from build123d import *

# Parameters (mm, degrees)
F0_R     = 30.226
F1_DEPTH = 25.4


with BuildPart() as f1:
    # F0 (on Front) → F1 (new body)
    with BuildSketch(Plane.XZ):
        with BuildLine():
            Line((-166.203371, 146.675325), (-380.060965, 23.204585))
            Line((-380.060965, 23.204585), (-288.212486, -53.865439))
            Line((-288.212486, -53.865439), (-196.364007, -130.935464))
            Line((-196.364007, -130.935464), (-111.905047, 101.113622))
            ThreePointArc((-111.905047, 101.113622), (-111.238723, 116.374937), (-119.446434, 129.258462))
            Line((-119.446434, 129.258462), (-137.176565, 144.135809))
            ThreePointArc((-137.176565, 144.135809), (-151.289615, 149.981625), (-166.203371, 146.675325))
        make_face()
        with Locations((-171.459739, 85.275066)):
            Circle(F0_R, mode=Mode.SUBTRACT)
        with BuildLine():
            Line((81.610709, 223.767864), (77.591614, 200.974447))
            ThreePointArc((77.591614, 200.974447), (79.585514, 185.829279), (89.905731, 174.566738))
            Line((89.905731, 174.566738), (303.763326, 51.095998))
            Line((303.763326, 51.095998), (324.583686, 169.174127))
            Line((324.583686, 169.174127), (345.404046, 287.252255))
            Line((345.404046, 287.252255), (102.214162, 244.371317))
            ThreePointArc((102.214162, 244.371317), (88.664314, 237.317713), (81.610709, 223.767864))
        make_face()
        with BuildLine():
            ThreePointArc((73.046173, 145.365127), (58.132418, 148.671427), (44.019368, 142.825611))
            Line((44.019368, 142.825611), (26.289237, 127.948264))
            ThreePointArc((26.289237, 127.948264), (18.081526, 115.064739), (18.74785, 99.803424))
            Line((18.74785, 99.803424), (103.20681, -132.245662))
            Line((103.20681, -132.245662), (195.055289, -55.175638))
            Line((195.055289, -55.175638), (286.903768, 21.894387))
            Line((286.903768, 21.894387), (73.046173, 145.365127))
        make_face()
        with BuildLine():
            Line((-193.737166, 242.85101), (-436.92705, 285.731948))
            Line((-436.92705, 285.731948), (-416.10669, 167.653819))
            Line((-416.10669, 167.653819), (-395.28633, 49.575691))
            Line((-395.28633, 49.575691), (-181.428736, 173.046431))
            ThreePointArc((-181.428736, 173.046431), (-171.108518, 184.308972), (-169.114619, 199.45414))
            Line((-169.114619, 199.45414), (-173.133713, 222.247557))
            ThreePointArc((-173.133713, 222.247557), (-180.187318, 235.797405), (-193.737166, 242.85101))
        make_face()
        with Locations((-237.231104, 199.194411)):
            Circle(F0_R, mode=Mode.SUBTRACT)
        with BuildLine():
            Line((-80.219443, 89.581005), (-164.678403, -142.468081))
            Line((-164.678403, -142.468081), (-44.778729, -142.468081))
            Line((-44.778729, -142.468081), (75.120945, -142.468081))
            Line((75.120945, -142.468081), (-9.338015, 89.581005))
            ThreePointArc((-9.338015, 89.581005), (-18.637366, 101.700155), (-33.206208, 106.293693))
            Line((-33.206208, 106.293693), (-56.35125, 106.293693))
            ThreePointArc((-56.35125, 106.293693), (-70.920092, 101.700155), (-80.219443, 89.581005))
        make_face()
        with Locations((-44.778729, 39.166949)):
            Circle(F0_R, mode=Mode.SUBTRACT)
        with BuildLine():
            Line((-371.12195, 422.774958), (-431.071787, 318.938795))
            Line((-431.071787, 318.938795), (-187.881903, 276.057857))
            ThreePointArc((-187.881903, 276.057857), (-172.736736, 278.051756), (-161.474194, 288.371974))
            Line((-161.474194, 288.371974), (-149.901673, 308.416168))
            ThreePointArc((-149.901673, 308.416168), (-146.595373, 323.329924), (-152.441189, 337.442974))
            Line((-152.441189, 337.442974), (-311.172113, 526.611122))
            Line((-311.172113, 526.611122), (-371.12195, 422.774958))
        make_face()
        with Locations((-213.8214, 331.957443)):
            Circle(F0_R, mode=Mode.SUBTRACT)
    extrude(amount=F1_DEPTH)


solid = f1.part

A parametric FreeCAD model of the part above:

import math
import FreeCAD as App
import Part
import Sketcher
from FreeCAD import Vector
Q = App.Units.Quantity

doc = App.newDocument("Part")
body = doc.addObject("PartDesign::Body", "Body")
body.AllowCompound = True

sketch1 = doc.addObject("Sketcher::SketchObject", "Sketch")
body.addObject(sketch1)
sketch1.AttachmentSupport = (doc.XZ_Plane, [""])
sketch1.MapMode = "FlatFace"
sketch1.addGeometry([
    Part.LineSegment(Vector(-166.203371, 146.675325, 0), Vector(-380.060965, 23.204585, 0)),
    Part.LineSegment(Vector(-380.060965, 23.204585, 0), Vector(-288.212486, -53.865439, 0)),
    Part.LineSegment(Vector(-288.212486, -53.865439, 0), Vector(-196.364007, -130.935464, 0)),
    Part.LineSegment(Vector(-196.364007, -130.935464, 0), Vector(-111.905047, 101.113622, 0)),
    Part.ArcOfCircle(Part.Circle(Vector(-135.773237, 109.800934, 0), Vector(0, 0, 1), 25.399997), math.radians(-20.000004), math.radians(50.000003)),
    Part.LineSegment(Vector(-119.446434, 129.258462, 0), Vector(-137.176565, 144.135809, 0)),
    Part.ArcOfCircle(Part.Circle(Vector(-153.503371, 124.678277, 0), Vector(0, 0, 1), 25.400002), math.radians(50.000004), math.radians(119.999998)),
    Part.Circle(Vector(-171.459739, 85.275066, 0), Vector(0, 0, 1), 30.226),
    Part.LineSegment(Vector(81.610709, 223.767864, 0), Vector(77.591614, 200.974447, 0)),
    Part.ArcOfCircle(Part.Circle(Vector(102.605734, 196.563785, 0), Vector(0, 0, 1), 25.400003), math.radians(170.000004), math.radians(239.999996)),
    Part.LineSegment(Vector(89.905731, 174.566738, 0), Vector(303.763326, 51.095998, 0)),
    Part.LineSegment(Vector(303.763326, 51.095998, 0), Vector(324.583686, 169.174127, 0)),
    Part.LineSegment(Vector(324.583686, 169.174127, 0), Vector(345.404046, 287.252255, 0)),
    Part.LineSegment(Vector(345.404046, 287.252255, 0), Vector(102.214162, 244.371317, 0)),
    Part.ArcOfCircle(Part.Circle(Vector(106.624825, 219.357201, 0), Vector(0, 0, 1), 25.399999), math.radians(99.999999), math.radians(170.000001)),
    Part.ArcOfCircle(Part.Circle(Vector(60.346173, 123.368081, 0), Vector(0, 0, 1), 25.400001), math.radians(60.000001), math.radians(129.999997)),
    Part.LineSegment(Vector(44.019368, 142.825611, 0), Vector(26.289237, 127.948264, 0)),
    Part.ArcOfCircle(Part.Circle(Vector(42.61604, 108.490736, 0), Vector(0, 0, 1), 25.399997), math.radians(129.999997), math.radians(200.000004)),
    Part.LineSegment(Vector(18.74785, 99.803424, 0), Vector(103.20681, -132.245662, 0)),
    Part.LineSegment(Vector(103.20681, -132.245662, 0), Vector(195.055289, -55.175638, 0)),
    Part.LineSegment(Vector(195.055289, -55.175638, 0), Vector(286.903768, 21.894387, 0)),
    Part.LineSegment(Vector(286.903768, 21.894387, 0), Vector(73.046173, 145.365127, 0)),
    Part.LineSegment(Vector(-193.737166, 242.85101, 0), Vector(-436.92705, 285.731948, 0)),
    Part.LineSegment(Vector(-436.92705, 285.731948, 0), Vector(-416.10669, 167.653819, 0)),
    Part.LineSegment(Vector(-416.10669, 167.653819, 0), Vector(-395.28633, 49.575691, 0)),
    Part.LineSegment(Vector(-395.28633, 49.575691, 0), Vector(-181.428736, 173.046431, 0)),
    Part.ArcOfCircle(Part.Circle(Vector(-194.128734, 195.043476, 0), Vector(0, 0, 1), 25.399999), math.radians(-60.000002), math.radians(10.000002)),
    Part.LineSegment(Vector(-169.114619, 199.45414, 0), Vector(-173.133713, 222.247557, 0)),
    Part.ArcOfCircle(Part.Circle(Vector(-198.147832, 217.836891, 0), Vector(0, 0, 1), 25.400002), math.radians(10.000004), math.radians(79.999996)),
    Part.Circle(Vector(-237.231104, 199.194411, 0), Vector(0, 0, 1), 30.226),
    Part.LineSegment(Vector(-80.219443, 89.581005, 0), Vector(-164.678403, -142.468081, 0)),
    Part.LineSegment(Vector(-164.678403, -142.468081, 0), Vector(75.120945, -142.468081, 0)),
    Part.LineSegment(Vector(75.120945, -142.468081, 0), Vector(-9.338015, 89.581005, 0)),
    Part.ArcOfCircle(Part.Circle(Vector(-33.206207, 80.893693, 0), Vector(0, 0, 1), 25.4), math.radians(20.000001), math.radians(90.000002)),
    Part.LineSegment(Vector(-33.206208, 106.293693, 0), Vector(-56.35125, 106.293693, 0)),
    Part.ArcOfCircle(Part.Circle(Vector(-56.351251, 80.893693, 0), Vector(0, 0, 1), 25.4), math.radians(89.999998), math.radians(159.999999)),
    Part.Circle(Vector(-44.778729, 39.166949, 0), Vector(0, 0, 1), 30.226),
    Part.LineSegment(Vector(-371.12195, 422.774958, 0), Vector(-431.071787, 318.938795, 0)),
    Part.LineSegment(Vector(-431.071787, 318.938795, 0), Vector(-187.881903, 276.057857, 0)),
    Part.ArcOfCircle(Part.Circle(Vector(-183.47124, 301.071974, 0), Vector(0, 0, 1), 25.4), math.radians(-99.999999), math.radians(-30.000001)),
    Part.LineSegment(Vector(-161.474194, 288.371974, 0), Vector(-149.901673, 308.416168, 0)),
    Part.ArcOfCircle(Part.Circle(Vector(-171.898721, 321.116168, 0), Vector(0, 0, 1), 25.400002), math.radians(-29.999998), math.radians(39.999996)),
    Part.LineSegment(Vector(-152.441189, 337.442974, 0), Vector(-311.172113, 526.611122, 0)),
    Part.LineSegment(Vector(-311.172113, 526.611122, 0), Vector(-371.12195, 422.774958, 0)),
    Part.Circle(Vector(-213.8214, 331.957443, 0), Vector(0, 0, 1), 30.226),
], False)
sketch1.addConstraint([
    Sketcher.Constraint("Coincident", 0, 2, 1, 1),
    Sketcher.Constraint("Coincident", 1, 2, 2, 1),
    Sketcher.Constraint("Coincident", 2, 2, 3, 1),
    Sketcher.Constraint("Tangent", 3, 2, 4, 1),
    Sketcher.Constraint("Tangent", 4, 2, 5, 1),
    Sketcher.Constraint("Tangent", 5, 2, 6, 1),
    Sketcher.Constraint("Tangent", 6, 2, 0, 1),
    Sketcher.Constraint("Tangent", 8, 2, 9, 1),
    Sketcher.Constraint("Tangent", 9, 2, 10, 1),
    Sketcher.Constraint("Coincident", 10, 2, 11, 1),
    Sketcher.Constraint("Coincident", 11, 2, 12, 1),
    Sketcher.Constraint("Coincident", 12, 2, 13, 1),
    Sketcher.Constraint("Tangent", 13, 2, 14, 1),
    Sketcher.Constraint("Tangent", 14, 2, 8, 1),
    Sketcher.Constraint("Tangent", 15, 2, 16, 1),
    Sketcher.Constraint("Tangent", 16, 2, 17, 1),
    Sketcher.Constraint("Tangent", 17, 2, 18, 1),
    Sketcher.Constraint("Coincident", 18, 2, 19, 1),
    Sketcher.Constraint("Coincident", 19, 2, 20, 1),
    Sketcher.Constraint("Coincident", 20, 2, 21, 1),
    Sketcher.Constraint("Tangent", 21, 2, 15, 1),
    Sketcher.Constraint("Coincident", 22, 2, 23, 1),
    Sketcher.Constraint("Coincident", 23, 2, 24, 1),
    Sketcher.Constraint("Coincident", 24, 2, 25, 1),
    Sketcher.Constraint("Tangent", 25, 2, 26, 1),
    Sketcher.Constraint("Tangent", 26, 2, 27, 1),
    Sketcher.Constraint("Tangent", 27, 2, 28, 1),
    Sketcher.Constraint("Tangent", 28, 2, 22, 1),
    Sketcher.Constraint("Coincident", 30, 2, 31, 1),
    Sketcher.Constraint("Coincident", 31, 2, 32, 1),
    Sketcher.Constraint("Tangent", 32, 2, 33, 1),
    Sketcher.Constraint("Tangent", 33, 2, 34, 1),
    Sketcher.Constraint("Tangent", 34, 2, 35, 1),
    Sketcher.Constraint("Tangent", 35, 2, 30, 1),
    Sketcher.Constraint("Coincident", 37, 2, 38, 1),
    Sketcher.Constraint("Tangent", 38, 2, 39, 1),
    Sketcher.Constraint("Tangent", 39, 2, 40, 1),
    Sketcher.Constraint("Tangent", 40, 2, 41, 1),
    Sketcher.Constraint("Tangent", 41, 2, 42, 1),
    Sketcher.Constraint("Coincident", 42, 2, 43, 1),
    Sketcher.Constraint("Coincident", 43, 2, 37, 1),
    Sketcher.Constraint("Horizontal", 31),
    Sketcher.Constraint("Horizontal", 34),
    Sketcher.Constraint("Equal", 6, 9),
    Sketcher.Constraint("Equal", 4, 14),
    Sketcher.Constraint("Equal", 14, 15),
    Sketcher.Constraint("Equal", 14, 17),
    Sketcher.Constraint("Equal", 17, 26),
    Sketcher.Constraint("Equal", 15, 28),
    Sketcher.Constraint("Equal", 7, 29),
    Sketcher.Constraint("Equal", 26, 33),
    Sketcher.Constraint("Equal", 33, 35),
    Sketcher.Constraint("Equal", 29, 36),
    Sketcher.Constraint("Equal", 35, 39),
    Sketcher.Constraint("Equal", 39, 41),
    Sketcher.Constraint("Equal", 36, 44),
    Sketcher.Constraint("Parallel", 1, 2),
    Sketcher.Constraint("Parallel", 2, 5),
    Sketcher.Constraint("Parallel", 8, 11),
    Sketcher.Constraint("Parallel", 11, 12),
    Sketcher.Constraint("Parallel", 16, 19),
    Sketcher.Constraint("Parallel", 19, 20),
    Sketcher.Constraint("Parallel", 10, 21),
    Sketcher.Constraint("Perpendicular", 12, 22),
    Sketcher.Constraint("Perpendicular", 13, 23),
    Sketcher.Constraint("Parallel", 23, 24),
    Sketcher.Constraint("Parallel", 0, 25),
    Sketcher.Constraint("Parallel", 24, 27),
    Sketcher.Constraint("Parallel", 3, 30),
    Sketcher.Constraint("Parallel", 18, 32),
    Sketcher.Constraint("Perpendicular", 21, 37),
    Sketcher.Constraint("Parallel", 22, 38),
    Sketcher.Constraint("Parallel", 37, 40),
    Sketcher.Constraint("Perpendicular", 20, 42),
    Sketcher.Constraint("Parallel", 40, 43),
    Sketcher.Constraint("Horizontal", 32, 2, 35, 2),
    Sketcher.Constraint("Equal", 1, 2),
    Sketcher.Constraint("Equal", 0, 3),
    Sketcher.Constraint("Equal", 5, 8),
    Sketcher.Constraint("Equal", 3, 10),
    Sketcher.Constraint("Equal", 2, 11),
    Sketcher.Constraint("Equal", 11, 12),
    Sketcher.Constraint("Equal", 10, 13),
    Sketcher.Constraint("Equal", 8, 16),
    Sketcher.Constraint("Equal", 13, 18),
    Sketcher.Constraint("Equal", 12, 19),
    Sketcher.Constraint("Equal", 19, 20),
    Sketcher.Constraint("Equal", 18, 21),
    Sketcher.Constraint("Equal", 21, 22),
    Sketcher.Constraint("Equal", 20, 23),
    Sketcher.Constraint("Equal", 23, 24),
    Sketcher.Constraint("Equal", 22, 25),
    Sketcher.Constraint("Equal", 16, 27),
    Sketcher.Constraint("Equal", 25, 30),
    Sketcher.Constraint("Equal", 24, 37),
    Sketcher.Constraint("Equal", 32, 38),
    Sketcher.Constraint("Equal", 27, 40),
    Sketcher.Constraint("Radius", 4, Q("0.9999999 in")),
    Sketcher.Constraint("Diameter", 7, Q("2.38 in")),
    Sketcher.Constraint("Angle", 0, Q("-150 deg")),
    Sketcher.Constraint("DistanceX", 4, 3, 17, 3, Q("7.0231998 in")),
    Sketcher.Constraint("DistanceX", 31, 1, 31, 2, 239.799348),
    Sketcher.Constraint("DistanceY", -1, 1, 14, 3, 219.357201),
    Sketcher.Constraint("DistanceX", 44, 3, -1, 1, 213.8214),
    Sketcher.Constraint("DistanceY", -1, 1, 10, 2, 51.095998),
    Sketcher.Constraint("DistanceY", 6, 3, 26, 3, 70.365198),
    Sketcher.Constraint("DistanceX", 36, 3, 15, 3, 105.124902),
    Sketcher.Constraint("DistanceY", 26, 3, 39, 3, 106.028499),
    Sketcher.Constraint("DistanceY", 2, 2, 4, 3, 240.736398),
    Sketcher.Constraint("DistanceY", 17, 3, 9, 2, 66.076002),
    Sketcher.Constraint("DistanceX", 22, 2, 43, 2, 65.8051),
    Sketcher.Constraint("DistanceX", 6, 3, -1, 1, 153.503371),
    Sketcher.Constraint("DistanceX", 7, 3, -1, 1, 171.459739),
    Sketcher.Constraint("DistanceX", 28, 3, -1, 1, 198.147832),
    Sketcher.Constraint("DistanceY", -1, 1, 28, 3, 217.836891),
    Sketcher.Constraint("DistanceY", -1, 1, 29, 3, 199.194411),
    Sketcher.Constraint("DistanceX", 35, 3, -1, 1, 56.351251),
    Sketcher.Constraint("DistanceY", -1, 1, 36, 3, 39.166949),
    Sketcher.Constraint("DistanceX", -1, 1, 9, 2, 89.905731),
    Sketcher.Constraint("DistanceY", 30, 2, -1, 1, 142.468081),
    Sketcher.Constraint("DistanceY", 7, 3, 6, 3, 39.403211),
    Sketcher.Constraint("DistanceX", 29, 3, 26, 3, 43.10237),
    Sketcher.Constraint("DistanceY", 39, 3, 44, 3, 30.885469),
])
pad1 = doc.addObject("PartDesign::Pad", "Pad")
body.addObject(pad1)
pad1.Profile = sketch1
pad1.Length = Q("1 in")

doc.recompute()
